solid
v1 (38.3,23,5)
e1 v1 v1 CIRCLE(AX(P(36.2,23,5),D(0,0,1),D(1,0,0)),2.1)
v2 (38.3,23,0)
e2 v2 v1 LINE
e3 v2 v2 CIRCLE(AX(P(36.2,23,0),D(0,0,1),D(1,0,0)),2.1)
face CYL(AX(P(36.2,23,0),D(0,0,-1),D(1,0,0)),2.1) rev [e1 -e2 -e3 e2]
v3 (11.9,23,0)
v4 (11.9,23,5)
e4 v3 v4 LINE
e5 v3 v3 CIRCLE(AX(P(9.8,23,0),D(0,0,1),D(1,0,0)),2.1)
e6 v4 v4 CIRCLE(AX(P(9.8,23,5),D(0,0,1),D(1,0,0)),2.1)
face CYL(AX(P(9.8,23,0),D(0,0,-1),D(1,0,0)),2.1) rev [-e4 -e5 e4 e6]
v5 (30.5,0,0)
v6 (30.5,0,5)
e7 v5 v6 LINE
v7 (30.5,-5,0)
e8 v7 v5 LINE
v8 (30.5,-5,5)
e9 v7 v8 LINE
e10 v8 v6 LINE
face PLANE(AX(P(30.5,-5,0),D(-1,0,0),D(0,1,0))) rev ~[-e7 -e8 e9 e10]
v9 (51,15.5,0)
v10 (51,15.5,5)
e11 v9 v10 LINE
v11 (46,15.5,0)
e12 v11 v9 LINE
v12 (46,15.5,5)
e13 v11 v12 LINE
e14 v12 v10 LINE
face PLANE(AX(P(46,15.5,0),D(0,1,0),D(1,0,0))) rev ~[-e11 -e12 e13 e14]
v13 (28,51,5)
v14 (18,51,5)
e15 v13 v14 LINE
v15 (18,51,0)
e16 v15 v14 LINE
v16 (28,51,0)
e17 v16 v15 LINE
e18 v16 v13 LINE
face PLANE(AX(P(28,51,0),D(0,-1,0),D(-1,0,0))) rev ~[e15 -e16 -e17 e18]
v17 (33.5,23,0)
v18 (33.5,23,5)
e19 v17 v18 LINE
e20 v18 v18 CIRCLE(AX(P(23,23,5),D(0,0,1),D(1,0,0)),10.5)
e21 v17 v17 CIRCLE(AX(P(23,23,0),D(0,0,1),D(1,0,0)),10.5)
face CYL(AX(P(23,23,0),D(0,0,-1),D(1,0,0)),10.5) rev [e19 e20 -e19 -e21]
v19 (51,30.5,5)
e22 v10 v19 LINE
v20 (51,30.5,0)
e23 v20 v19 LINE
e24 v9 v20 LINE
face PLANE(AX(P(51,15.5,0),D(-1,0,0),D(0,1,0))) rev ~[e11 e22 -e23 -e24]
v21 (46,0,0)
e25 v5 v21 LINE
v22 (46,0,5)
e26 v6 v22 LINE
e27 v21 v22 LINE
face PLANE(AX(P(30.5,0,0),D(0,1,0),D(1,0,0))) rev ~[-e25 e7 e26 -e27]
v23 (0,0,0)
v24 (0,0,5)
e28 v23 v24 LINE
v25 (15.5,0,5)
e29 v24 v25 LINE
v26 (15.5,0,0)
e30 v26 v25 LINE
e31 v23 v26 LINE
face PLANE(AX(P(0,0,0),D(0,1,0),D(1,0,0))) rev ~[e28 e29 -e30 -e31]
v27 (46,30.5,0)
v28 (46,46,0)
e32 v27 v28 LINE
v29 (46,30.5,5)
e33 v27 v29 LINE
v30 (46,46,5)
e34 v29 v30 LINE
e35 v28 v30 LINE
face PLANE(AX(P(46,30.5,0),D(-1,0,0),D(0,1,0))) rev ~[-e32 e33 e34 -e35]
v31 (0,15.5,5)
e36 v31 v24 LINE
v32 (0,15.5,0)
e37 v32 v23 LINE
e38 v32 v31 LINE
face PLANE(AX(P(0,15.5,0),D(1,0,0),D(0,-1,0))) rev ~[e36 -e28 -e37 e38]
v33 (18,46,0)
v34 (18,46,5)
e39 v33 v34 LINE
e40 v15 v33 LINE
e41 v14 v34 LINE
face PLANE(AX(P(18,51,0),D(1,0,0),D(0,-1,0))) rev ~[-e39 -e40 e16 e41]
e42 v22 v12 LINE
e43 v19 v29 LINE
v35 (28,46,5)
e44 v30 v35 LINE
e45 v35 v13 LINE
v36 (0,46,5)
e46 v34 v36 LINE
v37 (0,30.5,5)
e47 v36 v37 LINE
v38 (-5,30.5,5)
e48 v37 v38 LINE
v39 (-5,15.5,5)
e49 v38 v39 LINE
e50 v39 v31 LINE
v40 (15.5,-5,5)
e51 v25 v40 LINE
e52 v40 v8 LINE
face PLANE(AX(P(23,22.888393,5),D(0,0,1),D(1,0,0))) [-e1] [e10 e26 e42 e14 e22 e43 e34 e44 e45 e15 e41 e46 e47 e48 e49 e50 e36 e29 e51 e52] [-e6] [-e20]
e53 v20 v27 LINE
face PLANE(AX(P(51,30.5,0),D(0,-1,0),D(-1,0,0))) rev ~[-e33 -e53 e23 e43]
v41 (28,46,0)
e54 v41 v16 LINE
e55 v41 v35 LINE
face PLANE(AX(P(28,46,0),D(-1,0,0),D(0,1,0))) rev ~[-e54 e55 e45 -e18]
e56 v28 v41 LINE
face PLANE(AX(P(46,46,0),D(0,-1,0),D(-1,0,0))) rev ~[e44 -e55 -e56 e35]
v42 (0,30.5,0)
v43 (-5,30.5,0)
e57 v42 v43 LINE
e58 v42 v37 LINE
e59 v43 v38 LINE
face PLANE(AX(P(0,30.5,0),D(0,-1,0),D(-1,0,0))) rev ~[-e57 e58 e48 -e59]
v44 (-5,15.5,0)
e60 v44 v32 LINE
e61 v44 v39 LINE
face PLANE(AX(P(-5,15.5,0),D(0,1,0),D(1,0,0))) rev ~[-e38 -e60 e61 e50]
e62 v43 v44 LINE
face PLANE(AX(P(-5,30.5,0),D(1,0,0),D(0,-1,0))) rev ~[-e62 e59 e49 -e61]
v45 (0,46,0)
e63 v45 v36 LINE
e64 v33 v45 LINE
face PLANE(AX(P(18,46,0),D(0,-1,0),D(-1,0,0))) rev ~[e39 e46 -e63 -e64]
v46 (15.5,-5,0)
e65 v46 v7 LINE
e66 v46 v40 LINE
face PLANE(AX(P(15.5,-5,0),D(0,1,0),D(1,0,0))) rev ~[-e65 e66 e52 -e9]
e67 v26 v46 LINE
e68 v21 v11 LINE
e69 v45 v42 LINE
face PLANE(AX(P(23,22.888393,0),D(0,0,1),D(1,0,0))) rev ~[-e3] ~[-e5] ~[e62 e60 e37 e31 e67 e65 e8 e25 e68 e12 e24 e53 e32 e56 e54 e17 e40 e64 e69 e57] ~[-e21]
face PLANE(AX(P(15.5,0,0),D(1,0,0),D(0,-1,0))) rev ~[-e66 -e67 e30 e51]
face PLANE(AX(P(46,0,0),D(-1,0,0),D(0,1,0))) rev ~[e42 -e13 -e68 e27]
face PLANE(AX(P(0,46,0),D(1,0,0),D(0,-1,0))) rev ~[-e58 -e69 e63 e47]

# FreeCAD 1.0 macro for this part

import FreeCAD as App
import Part
import Sketcher
Q = App.Units.Quantity


def add_polygon(sketch, points):
    """Adds a closed chain of lines whose ends are joined by coincident constraints."""
    first, n = sketch.GeometryCount, len(points)
    for a, b in zip(points, points[1:] + points[:1]):
        sketch.addGeometry(Part.LineSegment(App.Vector(*a, 0), App.Vector(*b, 0)), False)
    for i in range(n):
        sketch.addConstraint(Sketcher.Constraint("Coincident", first + i, 2, first + (i + 1) % n, 1))

doc = App.newDocument("Part")
params = doc.addObject("Spreadsheet::Sheet", "Params")
for row, (alias, value) in enumerate([
    ("sketch1_diameter", "21 mm"),
    ("sketch1_diameter2", "4.2 mm"),
    ("sketch1_width", "15 mm"),
    ("sketch1_width2", "5 mm"),
    ("sketch1_width3", "18 mm"),
    ("pad1_length", "5 mm"),
], start=1):
    params.set(f"A{row}", alias)
    params.set(f"B{row}", "=" + value)
    params.setAlias(f"B{row}", alias)

body = doc.addObject("PartDesign::Body", "Body")

sketch1 = body.newObject("Sketcher::SketchObject", "Sketch")
sketch1.AttachmentSupport = (doc.getObject("XY_Plane"), [""])
sketch1.MapMode = "FlatFace"
add_polygon(sketch1, [(0, 15.5), (0, 0), (15.5, 0), (15.5, -5), (30.5, -5), (30.5, 0), (46, 0), (46, 15.5), (51, 15.5), (51, 30.5), (46, 30.5), (46, 46), (28, 46), (28, 51), (18, 51), (18, 46), (0, 46), (0, 30.5), (-5, 30.5), (-5, 15.5)])
sketch1.addGeometry(Part.Circle(App.Vector(9.8, 23, 0), App.Vector(0, 0, 1), 2.1), False)
sketch1.addGeometry(Part.Circle(App.Vector(23, 23, 0), App.Vector(0, 0, 1), 10.5), False)
sketch1.addGeometry(Part.Circle(App.Vector(36.2, 23, 0), App.Vector(0, 0, 1), 2.1), False)
sketch1.addConstraint([
    Sketcher.Constraint("Vertical", 0),
    Sketcher.Constraint("Horizontal", 1),
    Sketcher.Constraint("Vertical", 2),
    Sketcher.Constraint("Horizontal", 3),
    Sketcher.Constraint("Vertical", 4),
    Sketcher.Constraint("Horizontal", 5),
    Sketcher.Constraint("Vertical", 6),
    Sketcher.Constraint("Horizontal", 7),
    Sketcher.Constraint("Vertical", 8),
    Sketcher.Constraint("Horizontal", 9),
    Sketcher.Constraint("Vertical", 10),
    Sketcher.Constraint("Horizontal", 11),
    Sketcher.Constraint("Vertical", 12),
    Sketcher.Constraint("Horizontal", 13),
    Sketcher.Constraint("Vertical", 14),
    Sketcher.Constraint("Horizontal", 15),
    Sketcher.Constraint("Vertical", 16),
    Sketcher.Constraint("Horizontal", 17),
    Sketcher.Constraint("Vertical", 18),
    Sketcher.Constraint("Horizontal", 19),
    Sketcher.Constraint("Coincident", 0, 2, -1, 1),
    Sketcher.Constraint("Equal", 20, 22),
    Sketcher.Constraint("PointOnObject", 4, 2, -1),
    Sketcher.Constraint("PointOnObject", 15, 2, -2),
    Sketcher.Constraint("Horizontal", 20, 3, 21, 3),
    Sketcher.Constraint("Horizontal", 21, 3, 22, 3),
    Sketcher.Constraint("Horizontal", 11, 2, 14, 2),
    Sketcher.Constraint("Horizontal", 9, 2, 16, 2),
    Sketcher.Constraint("Horizontal", 7, 2, 18, 2),
    Sketcher.Constraint("Vertical", 6, 2, 9, 2),
    Sketcher.Constraint("Equal", 1, 5),
    Sketcher.Constraint("Equal", 11, 15),
    Sketcher.Constraint("Equal", 9, 17),
    Sketcher.Constraint("Equal", 5, 0),
    Sketcher.Constraint("Equal", 19, 2),
    Sketcher.Constraint("Equal", 3, 8),
    Sketcher.Constraint("Equal", 6, 10),
    Sketcher.Constraint("Equal", 4, 12),
    Sketcher.Constraint("Diameter", 21, Q("21 mm")),
    Sketcher.Constraint("Diameter", 20, Q("4.2 mm")),
    Sketcher.Constraint("DistanceX", 3, 1, 3, 2, Q("15 mm")),
    Sketcher.Constraint("DistanceX", 7, 1, 7, 2, Q("5 mm")),
    Sketcher.Constraint("DistanceX", 11, 2, 11, 1, Q("18 mm")),
    Sketcher.Constraint("DistanceX", 13, 2, 13, 1, Q("10 mm")),
    Sketcher.Constraint("DistanceY", -1, 1, 20, 3, Q("23 mm")),
    Sketcher.Constraint("DistanceX", -1, 1, 21, 3, Q("23 mm")),
    Sketcher.Constraint("DistanceX", -1, 1, 20, 3, Q("9.8 mm")),
    Sketcher.Constraint("DistanceX", -1, 1, 22, 3, Q("36.2 mm")),
])
sketch1.setExpression("Constraints[58]", "Params.sketch1_diameter")
sketch1.setExpression("Constraints[59]", "Params.sketch1_diameter2")
sketch1.setExpression("Constraints[60]", "Params.sketch1_width")
sketch1.setExpression("Constraints[61]", "Params.sketch1_width2")
sketch1.setExpression("Constraints[62]", "Params.sketch1_width3")
pad1 = body.newObject("PartDesign::Pad", "Pad")
pad1.Profile = sketch1
pad1.setExpression("Length", "Params.pad1_length")

doc.recompute()
